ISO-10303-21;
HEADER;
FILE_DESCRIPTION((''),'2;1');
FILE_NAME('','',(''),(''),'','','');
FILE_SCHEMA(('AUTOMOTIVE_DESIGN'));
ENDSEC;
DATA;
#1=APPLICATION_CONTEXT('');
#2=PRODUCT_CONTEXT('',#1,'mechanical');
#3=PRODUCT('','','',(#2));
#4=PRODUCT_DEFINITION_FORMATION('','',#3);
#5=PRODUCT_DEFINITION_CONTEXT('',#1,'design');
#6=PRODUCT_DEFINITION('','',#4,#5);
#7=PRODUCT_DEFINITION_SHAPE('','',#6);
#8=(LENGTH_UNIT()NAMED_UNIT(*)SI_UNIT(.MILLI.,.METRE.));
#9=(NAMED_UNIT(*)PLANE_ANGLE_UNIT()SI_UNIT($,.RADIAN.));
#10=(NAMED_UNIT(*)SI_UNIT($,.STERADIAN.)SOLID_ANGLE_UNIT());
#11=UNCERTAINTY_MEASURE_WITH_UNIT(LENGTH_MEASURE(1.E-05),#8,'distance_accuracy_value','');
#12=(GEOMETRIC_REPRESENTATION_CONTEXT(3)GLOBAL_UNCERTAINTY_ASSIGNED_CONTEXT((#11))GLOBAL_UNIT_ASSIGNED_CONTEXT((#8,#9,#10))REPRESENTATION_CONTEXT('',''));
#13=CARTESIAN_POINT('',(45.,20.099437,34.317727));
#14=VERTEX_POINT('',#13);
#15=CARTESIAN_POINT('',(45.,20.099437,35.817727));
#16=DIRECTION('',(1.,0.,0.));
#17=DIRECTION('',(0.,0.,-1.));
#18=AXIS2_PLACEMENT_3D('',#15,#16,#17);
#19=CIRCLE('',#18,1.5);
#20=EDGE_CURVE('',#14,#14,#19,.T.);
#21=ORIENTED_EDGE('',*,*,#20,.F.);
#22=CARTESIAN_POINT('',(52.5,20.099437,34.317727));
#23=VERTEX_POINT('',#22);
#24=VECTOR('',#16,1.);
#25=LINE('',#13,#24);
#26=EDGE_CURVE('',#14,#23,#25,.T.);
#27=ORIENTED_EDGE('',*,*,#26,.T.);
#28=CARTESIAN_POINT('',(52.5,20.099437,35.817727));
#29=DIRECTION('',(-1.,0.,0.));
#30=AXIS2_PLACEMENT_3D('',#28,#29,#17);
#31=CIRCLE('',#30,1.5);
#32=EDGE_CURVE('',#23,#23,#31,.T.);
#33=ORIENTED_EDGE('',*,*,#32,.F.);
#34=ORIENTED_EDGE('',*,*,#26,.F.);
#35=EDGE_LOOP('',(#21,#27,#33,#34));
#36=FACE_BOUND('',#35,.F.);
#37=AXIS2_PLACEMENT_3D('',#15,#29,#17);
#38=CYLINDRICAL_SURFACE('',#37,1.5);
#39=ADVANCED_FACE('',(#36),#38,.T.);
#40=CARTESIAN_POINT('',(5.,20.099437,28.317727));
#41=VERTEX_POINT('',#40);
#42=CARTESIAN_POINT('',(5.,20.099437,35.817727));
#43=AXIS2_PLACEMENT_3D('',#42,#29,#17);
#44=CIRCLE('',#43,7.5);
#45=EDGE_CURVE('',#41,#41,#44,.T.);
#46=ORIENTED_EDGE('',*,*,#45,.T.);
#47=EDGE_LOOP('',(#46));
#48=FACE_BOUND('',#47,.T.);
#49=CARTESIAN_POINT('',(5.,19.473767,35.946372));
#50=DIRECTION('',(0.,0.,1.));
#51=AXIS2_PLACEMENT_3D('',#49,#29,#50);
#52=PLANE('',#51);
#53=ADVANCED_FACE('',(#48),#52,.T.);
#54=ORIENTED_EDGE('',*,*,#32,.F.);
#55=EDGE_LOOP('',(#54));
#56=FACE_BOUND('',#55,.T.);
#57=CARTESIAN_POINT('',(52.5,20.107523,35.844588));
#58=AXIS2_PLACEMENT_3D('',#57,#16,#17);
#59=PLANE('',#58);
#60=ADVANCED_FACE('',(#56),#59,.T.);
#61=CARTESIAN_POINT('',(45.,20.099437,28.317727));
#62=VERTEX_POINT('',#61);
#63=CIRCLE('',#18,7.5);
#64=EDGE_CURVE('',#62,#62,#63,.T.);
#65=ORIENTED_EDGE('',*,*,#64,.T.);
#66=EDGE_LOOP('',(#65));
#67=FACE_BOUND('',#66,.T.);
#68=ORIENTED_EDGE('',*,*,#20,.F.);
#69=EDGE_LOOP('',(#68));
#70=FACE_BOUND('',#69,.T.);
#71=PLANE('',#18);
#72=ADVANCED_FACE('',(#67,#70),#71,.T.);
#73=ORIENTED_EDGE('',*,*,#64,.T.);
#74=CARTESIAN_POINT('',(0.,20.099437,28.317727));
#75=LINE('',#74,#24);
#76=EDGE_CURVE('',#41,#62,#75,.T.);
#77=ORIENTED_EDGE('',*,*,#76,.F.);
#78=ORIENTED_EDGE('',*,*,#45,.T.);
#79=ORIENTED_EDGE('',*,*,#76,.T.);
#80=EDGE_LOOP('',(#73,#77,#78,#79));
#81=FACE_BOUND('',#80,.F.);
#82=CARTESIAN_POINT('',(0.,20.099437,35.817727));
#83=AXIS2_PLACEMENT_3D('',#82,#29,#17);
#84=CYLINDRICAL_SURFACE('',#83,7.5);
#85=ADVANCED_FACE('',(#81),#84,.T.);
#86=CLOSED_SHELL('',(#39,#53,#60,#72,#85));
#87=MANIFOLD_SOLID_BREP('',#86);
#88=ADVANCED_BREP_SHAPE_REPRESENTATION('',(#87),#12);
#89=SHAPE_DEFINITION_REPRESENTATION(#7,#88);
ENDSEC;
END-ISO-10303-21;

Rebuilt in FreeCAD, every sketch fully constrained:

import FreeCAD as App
import Part
import Sketcher
from FreeCAD import Vector

doc = App.newDocument("Part")
body = doc.addObject("PartDesign::Body", "Body")

sketch1 = body.newObject("Sketcher::SketchObject", "Sketch")
sketch1.AttachmentSupport = (doc.getObject("YZ_Plane"), [""])
sketch1.MapMode = "FlatFace"
sketch1.addGeometry(Part.Circle(Vector(20.099437, 35.817727, 0), Vector(0, 0, 1), 7.5), False)
sketch1.addConstraint([
    Sketcher.Constraint("Diameter", 0, 15.0),
    Sketcher.Constraint("DistanceX", -1, 1, 0, 3, 20.099437),
    Sketcher.Constraint("DistanceY", -1, 1, 0, 3, 35.817727),
])
pad1 = body.newObject("PartDesign::Pad", "Pad")
pad1.Profile = sketch1
pad1.Length = 45

sketch2 = body.newObject("Sketcher::SketchObject", "Sketch001")
sketch2.AttachmentSupport = (doc.getObject("YZ_Plane"), [""])
sketch2.MapMode = "FlatFace"
sketch2.AttachmentOffset = App.Placement(Vector(0, 0, 45), App.Rotation())
sketch2.addGeometry(Part.Circle(Vector(20.099437, 35.817727, 0), Vector(0, 0, 1), 1.5), False)
sketch2.addConstraint([
    Sketcher.Constraint("Diameter", 0, 3.0),
    Sketcher.Constraint("DistanceX", -1, 1, 0, 3, 20.099437),
    Sketcher.Constraint("DistanceY", -1, 1, 0, 3, 35.817727),
])
pad2 = body.newObject("PartDesign::Pad", "Pad001")
pad2.Profile = sketch2
pad2.Length = 15

sketch3 = body.newObject("Sketcher::SketchObject", "Sketch002")
sketch3.AttachmentSupport = (doc.getObject("YZ_Plane"), [""])
sketch3.MapMode = "FlatFace"
sketch3.addGeometry(Part.Circle(Vector(19.473767, 35.946372, 0), Vector(0, 0, 1), 19.310172), False)
sketch3.addConstraint([
    Sketcher.Constraint("Diameter", 0, 38.620344),
    Sketcher.Constraint("DistanceX", -1, 1, 0, 3, 19.473767),
    Sketcher.Constraint("DistanceY", -1, 1, 0, 3, 35.946372),
])
pocket1 = body.newObject("PartDesign::Pocket", "Pocket")
pocket1.Profile = sketch3
pocket1.Length = 5
pocket1.Reversed = True

sketch4 = body.newObject("Sketcher::SketchObject", "Sketch003")
sketch4.AttachmentSupport = (doc.getObject("YZ_Plane"), [""])
sketch4.MapMode = "FlatFace"
sketch4.AttachmentOffset = App.Placement(Vector(0, 0, 60), App.Rotation())
sketch4.addGeometry(Part.Circle(Vector(20.107523, 35.844588, 0), Vector(0, 0, 1), 8.741087), False)
sketch4.addConstraint([
    Sketcher.Constraint("Diameter", 0, 17.482174),
    Sketcher.Constraint("DistanceY", -1, 1, 0, 3, 35.844588),
    Sketcher.Constraint("DistanceX", -1, 1, 0, 3, 20.107523),
])
pocket2 = body.newObject("PartDesign::Pocket", "Pocket001")
pocket2.Profile = sketch4
pocket2.Length = 7.5

doc.recompute()
